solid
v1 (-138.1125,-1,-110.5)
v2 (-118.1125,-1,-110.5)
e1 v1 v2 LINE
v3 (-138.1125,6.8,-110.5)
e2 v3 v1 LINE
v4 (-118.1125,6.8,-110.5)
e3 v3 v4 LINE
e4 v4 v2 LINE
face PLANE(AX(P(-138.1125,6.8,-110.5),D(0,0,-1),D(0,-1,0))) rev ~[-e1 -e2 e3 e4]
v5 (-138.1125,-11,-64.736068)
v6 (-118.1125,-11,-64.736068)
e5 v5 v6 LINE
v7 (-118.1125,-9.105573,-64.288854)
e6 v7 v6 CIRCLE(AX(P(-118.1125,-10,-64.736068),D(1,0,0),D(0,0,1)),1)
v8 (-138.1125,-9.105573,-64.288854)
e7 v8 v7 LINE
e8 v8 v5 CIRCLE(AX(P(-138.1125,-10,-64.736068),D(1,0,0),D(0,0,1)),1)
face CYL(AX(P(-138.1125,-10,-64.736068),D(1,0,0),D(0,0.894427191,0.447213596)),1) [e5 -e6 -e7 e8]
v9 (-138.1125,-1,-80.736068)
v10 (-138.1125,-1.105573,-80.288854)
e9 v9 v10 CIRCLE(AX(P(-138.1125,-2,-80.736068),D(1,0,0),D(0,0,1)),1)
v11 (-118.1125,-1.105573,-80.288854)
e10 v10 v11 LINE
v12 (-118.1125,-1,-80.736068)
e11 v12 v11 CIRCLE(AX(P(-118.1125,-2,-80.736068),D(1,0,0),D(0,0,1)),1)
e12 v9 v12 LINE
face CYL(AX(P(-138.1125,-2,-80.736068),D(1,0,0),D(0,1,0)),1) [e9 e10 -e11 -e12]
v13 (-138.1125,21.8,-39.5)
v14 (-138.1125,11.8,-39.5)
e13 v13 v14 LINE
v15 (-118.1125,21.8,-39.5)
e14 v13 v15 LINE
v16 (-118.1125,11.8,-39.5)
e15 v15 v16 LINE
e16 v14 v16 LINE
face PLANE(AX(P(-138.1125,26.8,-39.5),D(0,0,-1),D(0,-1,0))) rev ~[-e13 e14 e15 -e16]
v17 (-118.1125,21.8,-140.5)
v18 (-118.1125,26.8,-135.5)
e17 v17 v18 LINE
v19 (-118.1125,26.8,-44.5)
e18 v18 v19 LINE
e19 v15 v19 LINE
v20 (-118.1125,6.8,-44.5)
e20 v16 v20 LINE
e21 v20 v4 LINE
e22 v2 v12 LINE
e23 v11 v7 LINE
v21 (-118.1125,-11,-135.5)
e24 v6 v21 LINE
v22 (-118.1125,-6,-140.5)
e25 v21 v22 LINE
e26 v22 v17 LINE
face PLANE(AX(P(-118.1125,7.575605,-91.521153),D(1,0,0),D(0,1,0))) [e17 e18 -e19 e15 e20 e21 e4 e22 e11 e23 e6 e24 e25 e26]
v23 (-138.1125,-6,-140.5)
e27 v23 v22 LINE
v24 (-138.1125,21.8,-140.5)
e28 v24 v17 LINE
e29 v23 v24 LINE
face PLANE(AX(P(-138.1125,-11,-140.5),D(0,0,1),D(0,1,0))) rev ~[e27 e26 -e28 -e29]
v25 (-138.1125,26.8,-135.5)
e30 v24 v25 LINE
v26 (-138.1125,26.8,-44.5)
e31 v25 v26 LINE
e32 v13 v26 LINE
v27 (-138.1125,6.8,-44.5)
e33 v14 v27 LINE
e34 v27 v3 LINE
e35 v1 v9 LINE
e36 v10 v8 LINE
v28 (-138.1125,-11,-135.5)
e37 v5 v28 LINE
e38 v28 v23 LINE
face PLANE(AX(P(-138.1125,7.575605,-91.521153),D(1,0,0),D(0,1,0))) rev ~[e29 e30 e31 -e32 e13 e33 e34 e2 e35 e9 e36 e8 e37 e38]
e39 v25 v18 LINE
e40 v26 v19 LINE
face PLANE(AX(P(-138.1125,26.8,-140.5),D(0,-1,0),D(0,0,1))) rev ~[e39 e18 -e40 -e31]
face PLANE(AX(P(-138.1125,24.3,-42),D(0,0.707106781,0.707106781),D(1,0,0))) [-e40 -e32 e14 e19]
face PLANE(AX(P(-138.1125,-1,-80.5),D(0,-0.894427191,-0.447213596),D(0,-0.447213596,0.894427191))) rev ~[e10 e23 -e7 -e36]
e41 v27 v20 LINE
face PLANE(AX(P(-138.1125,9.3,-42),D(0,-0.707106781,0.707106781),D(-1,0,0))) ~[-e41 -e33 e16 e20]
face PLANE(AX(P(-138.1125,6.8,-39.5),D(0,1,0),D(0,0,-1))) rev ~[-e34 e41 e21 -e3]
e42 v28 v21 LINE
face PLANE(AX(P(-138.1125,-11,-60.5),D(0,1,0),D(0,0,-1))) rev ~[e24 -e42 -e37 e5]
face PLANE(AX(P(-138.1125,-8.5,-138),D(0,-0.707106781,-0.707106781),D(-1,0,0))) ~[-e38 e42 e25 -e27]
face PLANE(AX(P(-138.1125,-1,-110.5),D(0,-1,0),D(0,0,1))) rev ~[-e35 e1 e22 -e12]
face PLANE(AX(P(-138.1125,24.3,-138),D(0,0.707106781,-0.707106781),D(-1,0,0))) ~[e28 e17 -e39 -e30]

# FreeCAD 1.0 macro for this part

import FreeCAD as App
import Part
import Sketcher


def edges_at(feature, points):
    """Names of the edges that pass closest to the given points."""
    edges = feature.Shape.Edges
    near = lambda p: min(range(len(edges)), key=lambda i: edges[i].distToShape(Part.Vertex(*p))[0])
    return sorted({f"Edge{near(p) + 1}" for p in points})

doc = App.newDocument("Part")
body = doc.addObject("PartDesign::Body", "Body")

# Sketch on YZ plane
sketch1 = body.newObject("Sketcher::SketchObject", "Sketch")
sketch1.AttachmentSupport = (doc.getObject("YZ_Plane"), [""])
sketch1.MapMode = "FlatFace"
sketch1.AttachmentOffset = App.Placement(App.Vector(0, 0, -138.1125), App.Rotation())
sketch1.addGeometry(Part.LineSegment(App.Vector(27, -40, 0), App.Vector(7, -40, 0)), False)
sketch1.addGeometry(Part.LineSegment(App.Vector(7, -40, 0), App.Vector(7, -110, 0)), False)
sketch1.addGeometry(Part.LineSegment(App.Vector(7, -110, 0), App.Vector(-1, -110, 0)), False)
sketch1.addGeometry(Part.LineSegment(App.Vector(-1, -110, 0), App.Vector(-1, -80, 0)), False)
sketch1.addGeometry(Part.LineSegment(App.Vector(-1, -80, 0), App.Vector(-11, -60, 0)), False)
sketch1.addGeometry(Part.LineSegment(App.Vector(-11, -60, 0), App.Vector(-11, -140, 0)), False)
sketch1.addGeometry(Part.LineSegment(App.Vector(-11, -140, 0), App.Vector(27, -140, 0)), False)
sketch1.addGeometry(Part.LineSegment(App.Vector(27, -140, 0), App.Vector(27, -40, 0)), False)
sketch1.addConstraint(Sketcher.Constraint("Coincident", 0, 2, 1, 1))
sketch1.addConstraint(Sketcher.Constraint("Coincident", 1, 2, 2, 1))
sketch1.addConstraint(Sketcher.Constraint("Coincident", 2, 2, 3, 1))
sketch1.addConstraint(Sketcher.Constraint("Coincident", 3, 2, 4, 1))
sketch1.addConstraint(Sketcher.Constraint("Coincident", 4, 2, 5, 1))
sketch1.addConstraint(Sketcher.Constraint("Coincident", 5, 2, 6, 1))
sketch1.addConstraint(Sketcher.Constraint("Coincident", 6, 2, 7, 1))
sketch1.addConstraint(Sketcher.Constraint("Coincident", 7, 2, 0, 1))
sketch1.addConstraint(Sketcher.Constraint("Horizontal", 0))
sketch1.addConstraint(Sketcher.Constraint("Vertical", 1))
sketch1.addConstraint(Sketcher.Constraint("Horizontal", 2))
sketch1.addConstraint(Sketcher.Constraint("Vertical", 3))
sketch1.addConstraint(Sketcher.Constraint("Vertical", 5))
sketch1.addConstraint(Sketcher.Constraint("Horizontal", 6))
sketch1.addConstraint(Sketcher.Constraint("Vertical", 7))
sketch1.addConstraint(Sketcher.Constraint("DistanceX", 0, 2, 0, 1, 20.0))
sketch1.addConstraint(Sketcher.Constraint("DistanceY", 1, 2, 1, 1, 71.0))
sketch1.addConstraint(Sketcher.Constraint("DistanceY", 3, 1, 3, 2, 30.0))
sketch1.addConstraint(Sketcher.Constraint("DistanceY", 5, 2, 5, 1, 80.0))
sketch1.addConstraint(Sketcher.Constraint("DistanceY", 7, 1, 7, 2, 101.0))
sketch1.addConstraint(Sketcher.Constraint("DistanceX", 2, 2, 2, 1, 7.8))
sketch1.addConstraint(Sketcher.Constraint("DistanceX", 6, 1, 6, 2, 37.8))
sketch1.addConstraint(Sketcher.Constraint("DistanceX", 2, 2, -1, 1, 1.0))
sketch1.addConstraint(Sketcher.Constraint("DistanceY", 0, 2, -1, 1, 39.5))
pad1 = body.newObject("PartDesign::Pad", "Pad")
pad1.Profile = sketch1
pad1.Length = 20
doc.recompute()

chamfer = body.newObject("PartDesign::Chamfer", "Chamfer")
chamfer.Base = (pad1, edges_at(pad1, [
    (-128.113, 26.8, -39.5),
    (-128.113, 6.8, -39.5),
    (-128.113, -11, -140.5),
    (-128.113, 26.8, -140.5),
]))
chamfer.Size = 5
doc.recompute()

fillet = body.newObject("PartDesign::Fillet", "Fillet")
fillet.Base = (chamfer, edges_at(chamfer, [(-128.113, -11, -60.5), (-128.113, -1, -80.5)]))
fillet.Radius = 1

doc.recompute()
